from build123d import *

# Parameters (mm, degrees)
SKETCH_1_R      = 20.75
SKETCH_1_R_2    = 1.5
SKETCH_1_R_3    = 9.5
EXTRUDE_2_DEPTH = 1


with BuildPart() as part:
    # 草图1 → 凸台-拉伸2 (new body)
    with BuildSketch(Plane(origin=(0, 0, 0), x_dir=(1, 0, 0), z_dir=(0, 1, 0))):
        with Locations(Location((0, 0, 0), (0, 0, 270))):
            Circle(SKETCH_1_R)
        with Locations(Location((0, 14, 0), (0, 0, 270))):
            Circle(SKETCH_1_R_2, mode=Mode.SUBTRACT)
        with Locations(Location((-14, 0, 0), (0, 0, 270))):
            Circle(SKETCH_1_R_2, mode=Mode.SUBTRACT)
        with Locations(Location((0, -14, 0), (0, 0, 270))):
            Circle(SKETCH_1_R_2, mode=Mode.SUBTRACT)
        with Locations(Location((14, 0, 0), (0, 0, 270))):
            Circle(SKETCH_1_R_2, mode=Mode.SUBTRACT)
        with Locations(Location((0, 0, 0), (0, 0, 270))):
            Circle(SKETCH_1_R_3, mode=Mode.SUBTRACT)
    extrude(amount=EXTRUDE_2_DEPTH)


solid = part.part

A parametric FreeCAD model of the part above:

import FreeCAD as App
import Part
import Sketcher

V = App.Vector
Q = App.Units.Quantity

doc = App.newDocument("Part")
body = doc.addObject("PartDesign::Body", "Body")

# Sketch on XZ plane
sketch1 = body.newObject("Sketcher::SketchObject", "Sketch")
sketch1.AttachmentSupport = (doc.getObject("XZ_Plane"), [""])
sketch1.MapMode = "FlatFace"
sketch1.addGeometry([
    Part.Circle(V(0, 0, 0), V(0, 0, 1), 20.8),  # 0
    Part.Circle(V(0, -14, 0), V(0, 0, 1), 1.5),  # 1
    Part.Circle(V(-14, 0, 0), V(0, 0, 1), 1.5),  # 2
    Part.Circle(V(14, 0, 0), V(0, 0, 1), 1.5),  # 3
    Part.Circle(V(0, 0, 0), V(0, 0, 1), 9.5),  # 4
    Part.Circle(V(0, 14, 0), V(0, 0, 1), 1.5),  # 5
], False)
sketch1.addConstraint([
    Sketcher.Constraint("Coincident", 0, 3, -1, 1),
    Sketcher.Constraint("Coincident", 4, 3, -1, 1),
    Sketcher.Constraint("Equal", 1, 2),
    Sketcher.Constraint("Equal", 2, 3),
    Sketcher.Constraint("Equal", 3, 5),
    Sketcher.Constraint("Symmetric", 2, 3, 3, 3, -1, 1),
    Sketcher.Constraint("Symmetric", 1, 3, 5, 3, -1, 1),
    Sketcher.Constraint("PointOnObject", 1, 3, -2),
    Sketcher.Constraint("PointOnObject", 2, 3, -1),
    Sketcher.Constraint("Diameter", 1, Q("3 mm")),
    Sketcher.Constraint("Diameter", 4, Q("19 mm")),
    Sketcher.Constraint("Diameter", 0, Q("41.5 mm")),
    Sketcher.Constraint("DistanceY", 1, 3, -1, 1, Q("14 mm")),
    Sketcher.Constraint("DistanceX", 2, 3, -1, 1, Q("14 mm")),
])
pad1 = body.newObject("PartDesign::Pad", "Pad")
pad1.Profile = sketch1
pad1.Length = 1
pad1.Reversed = True

doc.recompute()
